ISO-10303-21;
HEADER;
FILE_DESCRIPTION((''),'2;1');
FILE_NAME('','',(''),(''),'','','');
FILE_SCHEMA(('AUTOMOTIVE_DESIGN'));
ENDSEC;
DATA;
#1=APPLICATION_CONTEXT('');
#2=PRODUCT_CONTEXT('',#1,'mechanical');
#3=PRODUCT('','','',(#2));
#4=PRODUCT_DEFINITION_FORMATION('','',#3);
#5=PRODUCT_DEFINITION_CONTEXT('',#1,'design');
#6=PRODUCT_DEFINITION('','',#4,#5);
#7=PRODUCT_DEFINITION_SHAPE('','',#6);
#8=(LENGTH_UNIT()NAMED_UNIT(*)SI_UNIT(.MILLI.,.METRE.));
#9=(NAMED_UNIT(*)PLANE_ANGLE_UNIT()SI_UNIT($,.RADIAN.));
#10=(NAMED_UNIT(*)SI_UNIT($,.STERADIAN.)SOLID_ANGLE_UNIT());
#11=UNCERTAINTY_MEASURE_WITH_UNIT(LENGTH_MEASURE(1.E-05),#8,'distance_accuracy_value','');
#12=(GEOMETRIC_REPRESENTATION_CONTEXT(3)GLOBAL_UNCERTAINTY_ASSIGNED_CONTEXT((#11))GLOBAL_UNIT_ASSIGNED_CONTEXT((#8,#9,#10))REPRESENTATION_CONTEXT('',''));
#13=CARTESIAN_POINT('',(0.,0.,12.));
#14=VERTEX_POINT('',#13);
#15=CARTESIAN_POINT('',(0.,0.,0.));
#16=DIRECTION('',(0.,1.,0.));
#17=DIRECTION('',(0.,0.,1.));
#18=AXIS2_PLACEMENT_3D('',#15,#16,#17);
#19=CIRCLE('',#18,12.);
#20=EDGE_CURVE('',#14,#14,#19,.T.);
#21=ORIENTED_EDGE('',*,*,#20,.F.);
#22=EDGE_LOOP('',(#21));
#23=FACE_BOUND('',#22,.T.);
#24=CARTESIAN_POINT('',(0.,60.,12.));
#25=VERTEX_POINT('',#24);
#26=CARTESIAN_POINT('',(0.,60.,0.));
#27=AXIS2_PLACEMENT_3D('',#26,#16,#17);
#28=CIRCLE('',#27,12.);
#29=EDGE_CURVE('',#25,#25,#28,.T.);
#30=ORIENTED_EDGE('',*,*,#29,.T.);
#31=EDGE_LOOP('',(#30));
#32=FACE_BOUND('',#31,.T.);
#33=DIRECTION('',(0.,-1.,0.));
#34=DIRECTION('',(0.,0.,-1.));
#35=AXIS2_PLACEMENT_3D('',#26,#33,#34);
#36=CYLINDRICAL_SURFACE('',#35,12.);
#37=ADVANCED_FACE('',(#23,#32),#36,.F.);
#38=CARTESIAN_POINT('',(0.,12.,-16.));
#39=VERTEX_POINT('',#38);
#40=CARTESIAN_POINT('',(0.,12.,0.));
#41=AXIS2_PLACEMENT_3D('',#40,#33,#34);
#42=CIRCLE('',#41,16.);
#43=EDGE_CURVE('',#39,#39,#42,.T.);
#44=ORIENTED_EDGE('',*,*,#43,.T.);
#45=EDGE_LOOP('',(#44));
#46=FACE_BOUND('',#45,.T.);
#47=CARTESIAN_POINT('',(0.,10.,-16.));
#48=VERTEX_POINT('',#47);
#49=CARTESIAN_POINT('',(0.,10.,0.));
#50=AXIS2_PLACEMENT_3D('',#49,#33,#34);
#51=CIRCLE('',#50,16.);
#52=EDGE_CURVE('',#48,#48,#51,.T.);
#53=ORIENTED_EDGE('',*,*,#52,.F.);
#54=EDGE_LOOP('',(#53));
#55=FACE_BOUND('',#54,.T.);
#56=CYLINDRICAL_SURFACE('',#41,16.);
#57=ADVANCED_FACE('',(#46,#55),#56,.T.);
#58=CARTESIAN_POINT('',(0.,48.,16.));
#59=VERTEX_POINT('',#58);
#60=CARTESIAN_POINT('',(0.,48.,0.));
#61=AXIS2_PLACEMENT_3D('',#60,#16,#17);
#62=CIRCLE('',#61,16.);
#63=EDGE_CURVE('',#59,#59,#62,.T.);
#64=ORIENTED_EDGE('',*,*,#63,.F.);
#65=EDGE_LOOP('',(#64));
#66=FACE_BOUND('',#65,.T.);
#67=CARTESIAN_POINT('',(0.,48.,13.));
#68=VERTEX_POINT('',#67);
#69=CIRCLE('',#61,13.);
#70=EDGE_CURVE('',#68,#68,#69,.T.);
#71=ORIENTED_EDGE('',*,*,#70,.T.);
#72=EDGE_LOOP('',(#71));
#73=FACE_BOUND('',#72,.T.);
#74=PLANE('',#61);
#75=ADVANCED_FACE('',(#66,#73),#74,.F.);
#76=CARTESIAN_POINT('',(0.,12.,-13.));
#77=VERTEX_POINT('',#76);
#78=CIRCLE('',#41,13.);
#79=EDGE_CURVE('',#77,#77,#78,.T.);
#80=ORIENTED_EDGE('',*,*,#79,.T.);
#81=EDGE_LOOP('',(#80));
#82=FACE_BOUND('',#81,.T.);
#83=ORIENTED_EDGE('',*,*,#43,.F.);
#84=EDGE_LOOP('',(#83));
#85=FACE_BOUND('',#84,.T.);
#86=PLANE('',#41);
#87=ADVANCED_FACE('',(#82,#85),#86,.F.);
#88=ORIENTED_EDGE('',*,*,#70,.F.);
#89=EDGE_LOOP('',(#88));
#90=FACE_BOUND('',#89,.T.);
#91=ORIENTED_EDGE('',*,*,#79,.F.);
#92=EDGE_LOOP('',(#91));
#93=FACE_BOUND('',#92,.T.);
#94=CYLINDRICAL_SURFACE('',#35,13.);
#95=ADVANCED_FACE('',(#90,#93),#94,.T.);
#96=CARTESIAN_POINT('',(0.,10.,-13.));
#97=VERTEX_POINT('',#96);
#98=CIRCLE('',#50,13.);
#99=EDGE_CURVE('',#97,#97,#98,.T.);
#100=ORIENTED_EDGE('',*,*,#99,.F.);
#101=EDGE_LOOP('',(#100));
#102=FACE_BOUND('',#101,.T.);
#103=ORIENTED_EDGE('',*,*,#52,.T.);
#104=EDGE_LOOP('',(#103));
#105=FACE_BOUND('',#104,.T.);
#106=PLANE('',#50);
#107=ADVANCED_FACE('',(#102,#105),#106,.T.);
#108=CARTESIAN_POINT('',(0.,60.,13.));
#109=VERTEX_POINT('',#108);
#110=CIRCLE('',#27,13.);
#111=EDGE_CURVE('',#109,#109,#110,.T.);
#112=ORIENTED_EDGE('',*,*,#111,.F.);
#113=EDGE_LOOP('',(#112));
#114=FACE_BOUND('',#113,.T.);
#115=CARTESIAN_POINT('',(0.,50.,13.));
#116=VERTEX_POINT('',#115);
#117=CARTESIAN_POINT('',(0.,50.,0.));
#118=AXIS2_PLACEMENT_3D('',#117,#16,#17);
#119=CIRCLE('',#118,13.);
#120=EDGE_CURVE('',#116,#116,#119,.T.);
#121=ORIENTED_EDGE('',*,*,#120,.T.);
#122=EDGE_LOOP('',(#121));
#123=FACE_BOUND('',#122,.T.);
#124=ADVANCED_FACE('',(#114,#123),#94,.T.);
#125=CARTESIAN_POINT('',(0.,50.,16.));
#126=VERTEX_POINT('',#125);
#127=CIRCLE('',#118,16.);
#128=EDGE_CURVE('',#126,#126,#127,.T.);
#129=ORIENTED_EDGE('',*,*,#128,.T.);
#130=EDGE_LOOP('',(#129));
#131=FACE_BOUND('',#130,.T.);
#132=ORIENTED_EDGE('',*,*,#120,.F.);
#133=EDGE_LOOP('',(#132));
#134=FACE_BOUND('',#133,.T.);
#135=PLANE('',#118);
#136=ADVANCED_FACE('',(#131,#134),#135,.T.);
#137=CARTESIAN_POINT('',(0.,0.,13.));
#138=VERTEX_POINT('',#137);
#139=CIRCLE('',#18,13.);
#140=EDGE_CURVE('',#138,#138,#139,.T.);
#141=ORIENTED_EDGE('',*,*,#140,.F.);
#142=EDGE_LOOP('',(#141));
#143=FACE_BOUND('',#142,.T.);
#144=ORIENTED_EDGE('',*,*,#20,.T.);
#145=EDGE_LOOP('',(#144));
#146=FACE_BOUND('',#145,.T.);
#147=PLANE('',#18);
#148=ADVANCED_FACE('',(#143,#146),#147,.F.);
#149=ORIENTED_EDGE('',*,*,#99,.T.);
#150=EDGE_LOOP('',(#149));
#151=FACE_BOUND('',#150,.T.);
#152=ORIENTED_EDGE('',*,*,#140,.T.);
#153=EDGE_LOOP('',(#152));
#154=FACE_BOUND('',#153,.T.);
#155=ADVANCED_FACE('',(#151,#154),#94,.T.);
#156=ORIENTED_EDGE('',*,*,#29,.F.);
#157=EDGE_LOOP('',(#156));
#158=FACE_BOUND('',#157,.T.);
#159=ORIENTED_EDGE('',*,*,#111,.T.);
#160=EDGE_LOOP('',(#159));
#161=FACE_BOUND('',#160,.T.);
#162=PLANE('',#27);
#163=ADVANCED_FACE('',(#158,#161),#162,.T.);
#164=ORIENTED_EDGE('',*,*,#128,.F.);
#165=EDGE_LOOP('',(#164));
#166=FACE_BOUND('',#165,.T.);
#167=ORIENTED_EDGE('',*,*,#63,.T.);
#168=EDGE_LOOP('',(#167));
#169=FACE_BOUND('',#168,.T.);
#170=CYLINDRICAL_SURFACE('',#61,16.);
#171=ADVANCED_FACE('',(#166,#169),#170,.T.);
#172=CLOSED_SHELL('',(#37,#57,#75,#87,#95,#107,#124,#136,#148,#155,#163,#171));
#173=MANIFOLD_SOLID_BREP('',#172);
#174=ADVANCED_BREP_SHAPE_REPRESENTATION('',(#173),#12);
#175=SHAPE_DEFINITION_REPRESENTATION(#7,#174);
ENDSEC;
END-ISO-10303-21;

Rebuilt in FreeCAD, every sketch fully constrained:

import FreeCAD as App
import Part
import Sketcher
from FreeCAD import Vector
Q = App.Units.Quantity

doc = App.newDocument("Part")
params = doc.addObject("Spreadsheet::Sheet", "Params")
for row, (alias, value) in enumerate([
    ("sketch1_diameter", "26 mm"),
    ("sketch1_diameter2", "24 mm"),
    ("pad1_length", "60 mm"),
    ("sketch2_diameter", "32 mm"),
    ("sketch2_diameter2", "24 mm"),
    ("pad2_length", "2 mm"),
    ("sketch3_diameter", "32 mm"),
    ("sketch3_diameter2", "24 mm"),
    ("pad3_length", "2 mm"),
], start=1):
    params.set(f"A{row}", alias)
    params.set(f"B{row}", "=" + value)
    params.setAlias(f"B{row}", alias)

body = doc.addObject("PartDesign::Body", "Body")

sketch1 = body.newObject("Sketcher::SketchObject", "Sketch")
sketch1.AttachmentSupport = (doc.getObject("XZ_Plane"), [""])
sketch1.MapMode = "FlatFace"
sketch1.addGeometry([
    Part.Circle(Vector(0, 0, 0), Vector(0, 0, 1), 13),
    Part.Circle(Vector(0, 0, 0), Vector(0, 0, 1), 12),
], False)
sketch1.addConstraint([
    Sketcher.Constraint("Coincident", 0, 3, -1, 1),
    Sketcher.Constraint("Coincident", 1, 3, -1, 1),
    Sketcher.Constraint("Diameter", 0, Q("26 mm")),
    Sketcher.Constraint("Diameter", 1, Q("24 mm")),
])
sketch1.setExpression("Constraints[2]", "Params.sketch1_diameter")
sketch1.setExpression("Constraints[3]", "Params.sketch1_diameter2")
pad1 = body.newObject("PartDesign::Pad", "Pad")
pad1.Profile = sketch1
pad1.setExpression("Length", "Params.pad1_length")
pad1.Reversed = True

sketch2 = body.newObject("Sketcher::SketchObject", "Sketch001")
sketch2.AttachmentSupport = (doc.getObject("XZ_Plane"), [""])
sketch2.MapMode = "FlatFace"
sketch2.AttachmentOffset = App.Placement(Vector(0, 0, -50), App.Rotation())
sketch2.addGeometry([
    Part.Circle(Vector(0, 0, 0), Vector(0, 0, 1), 16),
    Part.Circle(Vector(0, 0, 0), Vector(0, 0, 1), 12),
], False)
sketch2.addConstraint([
    Sketcher.Constraint("Coincident", 0, 3, -1, 1),
    Sketcher.Constraint("Coincident", 1, 3, -1, 1),
    Sketcher.Constraint("Diameter", 0, Q("32 mm")),
    Sketcher.Constraint("Diameter", 1, Q("24 mm")),
])
sketch2.setExpression("Constraints[2]", "Params.sketch2_diameter")
sketch2.setExpression("Constraints[3]", "Params.sketch2_diameter2")
pad2 = body.newObject("PartDesign::Pad", "Pad001")
pad2.Profile = sketch2
pad2.setExpression("Length", "Params.pad2_length")

sketch3 = body.newObject("Sketcher::SketchObject", "Sketch002")
sketch3.AttachmentSupport = (doc.getObject("XZ_Plane"), [""])
sketch3.MapMode = "FlatFace"
sketch3.AttachmentOffset = App.Placement(Vector(0, 0, -10), App.Rotation())
sketch3.addGeometry([
    Part.Circle(Vector(0, 0, 0), Vector(0, 0, 1), 16),
    Part.Circle(Vector(0, 0, 0), Vector(0, 0, 1), 12),
], False)
sketch3.addConstraint([
    Sketcher.Constraint("Coincident", 0, 3, -1, 1),
    Sketcher.Constraint("Coincident", 1, 3, -1, 1),
    Sketcher.Constraint("Diameter", 0, Q("32 mm")),
    Sketcher.Constraint("Diameter", 1, Q("24 mm")),
])
sketch3.setExpression("Constraints[2]", "Params.sketch3_diameter")
sketch3.setExpression("Constraints[3]", "Params.sketch3_diameter2")
pad3 = body.newObject("PartDesign::Pad", "Pad002")
pad3.Profile = sketch3
pad3.setExpression("Length", "Params.pad3_length")
pad3.Reversed = True

doc.recompute()
